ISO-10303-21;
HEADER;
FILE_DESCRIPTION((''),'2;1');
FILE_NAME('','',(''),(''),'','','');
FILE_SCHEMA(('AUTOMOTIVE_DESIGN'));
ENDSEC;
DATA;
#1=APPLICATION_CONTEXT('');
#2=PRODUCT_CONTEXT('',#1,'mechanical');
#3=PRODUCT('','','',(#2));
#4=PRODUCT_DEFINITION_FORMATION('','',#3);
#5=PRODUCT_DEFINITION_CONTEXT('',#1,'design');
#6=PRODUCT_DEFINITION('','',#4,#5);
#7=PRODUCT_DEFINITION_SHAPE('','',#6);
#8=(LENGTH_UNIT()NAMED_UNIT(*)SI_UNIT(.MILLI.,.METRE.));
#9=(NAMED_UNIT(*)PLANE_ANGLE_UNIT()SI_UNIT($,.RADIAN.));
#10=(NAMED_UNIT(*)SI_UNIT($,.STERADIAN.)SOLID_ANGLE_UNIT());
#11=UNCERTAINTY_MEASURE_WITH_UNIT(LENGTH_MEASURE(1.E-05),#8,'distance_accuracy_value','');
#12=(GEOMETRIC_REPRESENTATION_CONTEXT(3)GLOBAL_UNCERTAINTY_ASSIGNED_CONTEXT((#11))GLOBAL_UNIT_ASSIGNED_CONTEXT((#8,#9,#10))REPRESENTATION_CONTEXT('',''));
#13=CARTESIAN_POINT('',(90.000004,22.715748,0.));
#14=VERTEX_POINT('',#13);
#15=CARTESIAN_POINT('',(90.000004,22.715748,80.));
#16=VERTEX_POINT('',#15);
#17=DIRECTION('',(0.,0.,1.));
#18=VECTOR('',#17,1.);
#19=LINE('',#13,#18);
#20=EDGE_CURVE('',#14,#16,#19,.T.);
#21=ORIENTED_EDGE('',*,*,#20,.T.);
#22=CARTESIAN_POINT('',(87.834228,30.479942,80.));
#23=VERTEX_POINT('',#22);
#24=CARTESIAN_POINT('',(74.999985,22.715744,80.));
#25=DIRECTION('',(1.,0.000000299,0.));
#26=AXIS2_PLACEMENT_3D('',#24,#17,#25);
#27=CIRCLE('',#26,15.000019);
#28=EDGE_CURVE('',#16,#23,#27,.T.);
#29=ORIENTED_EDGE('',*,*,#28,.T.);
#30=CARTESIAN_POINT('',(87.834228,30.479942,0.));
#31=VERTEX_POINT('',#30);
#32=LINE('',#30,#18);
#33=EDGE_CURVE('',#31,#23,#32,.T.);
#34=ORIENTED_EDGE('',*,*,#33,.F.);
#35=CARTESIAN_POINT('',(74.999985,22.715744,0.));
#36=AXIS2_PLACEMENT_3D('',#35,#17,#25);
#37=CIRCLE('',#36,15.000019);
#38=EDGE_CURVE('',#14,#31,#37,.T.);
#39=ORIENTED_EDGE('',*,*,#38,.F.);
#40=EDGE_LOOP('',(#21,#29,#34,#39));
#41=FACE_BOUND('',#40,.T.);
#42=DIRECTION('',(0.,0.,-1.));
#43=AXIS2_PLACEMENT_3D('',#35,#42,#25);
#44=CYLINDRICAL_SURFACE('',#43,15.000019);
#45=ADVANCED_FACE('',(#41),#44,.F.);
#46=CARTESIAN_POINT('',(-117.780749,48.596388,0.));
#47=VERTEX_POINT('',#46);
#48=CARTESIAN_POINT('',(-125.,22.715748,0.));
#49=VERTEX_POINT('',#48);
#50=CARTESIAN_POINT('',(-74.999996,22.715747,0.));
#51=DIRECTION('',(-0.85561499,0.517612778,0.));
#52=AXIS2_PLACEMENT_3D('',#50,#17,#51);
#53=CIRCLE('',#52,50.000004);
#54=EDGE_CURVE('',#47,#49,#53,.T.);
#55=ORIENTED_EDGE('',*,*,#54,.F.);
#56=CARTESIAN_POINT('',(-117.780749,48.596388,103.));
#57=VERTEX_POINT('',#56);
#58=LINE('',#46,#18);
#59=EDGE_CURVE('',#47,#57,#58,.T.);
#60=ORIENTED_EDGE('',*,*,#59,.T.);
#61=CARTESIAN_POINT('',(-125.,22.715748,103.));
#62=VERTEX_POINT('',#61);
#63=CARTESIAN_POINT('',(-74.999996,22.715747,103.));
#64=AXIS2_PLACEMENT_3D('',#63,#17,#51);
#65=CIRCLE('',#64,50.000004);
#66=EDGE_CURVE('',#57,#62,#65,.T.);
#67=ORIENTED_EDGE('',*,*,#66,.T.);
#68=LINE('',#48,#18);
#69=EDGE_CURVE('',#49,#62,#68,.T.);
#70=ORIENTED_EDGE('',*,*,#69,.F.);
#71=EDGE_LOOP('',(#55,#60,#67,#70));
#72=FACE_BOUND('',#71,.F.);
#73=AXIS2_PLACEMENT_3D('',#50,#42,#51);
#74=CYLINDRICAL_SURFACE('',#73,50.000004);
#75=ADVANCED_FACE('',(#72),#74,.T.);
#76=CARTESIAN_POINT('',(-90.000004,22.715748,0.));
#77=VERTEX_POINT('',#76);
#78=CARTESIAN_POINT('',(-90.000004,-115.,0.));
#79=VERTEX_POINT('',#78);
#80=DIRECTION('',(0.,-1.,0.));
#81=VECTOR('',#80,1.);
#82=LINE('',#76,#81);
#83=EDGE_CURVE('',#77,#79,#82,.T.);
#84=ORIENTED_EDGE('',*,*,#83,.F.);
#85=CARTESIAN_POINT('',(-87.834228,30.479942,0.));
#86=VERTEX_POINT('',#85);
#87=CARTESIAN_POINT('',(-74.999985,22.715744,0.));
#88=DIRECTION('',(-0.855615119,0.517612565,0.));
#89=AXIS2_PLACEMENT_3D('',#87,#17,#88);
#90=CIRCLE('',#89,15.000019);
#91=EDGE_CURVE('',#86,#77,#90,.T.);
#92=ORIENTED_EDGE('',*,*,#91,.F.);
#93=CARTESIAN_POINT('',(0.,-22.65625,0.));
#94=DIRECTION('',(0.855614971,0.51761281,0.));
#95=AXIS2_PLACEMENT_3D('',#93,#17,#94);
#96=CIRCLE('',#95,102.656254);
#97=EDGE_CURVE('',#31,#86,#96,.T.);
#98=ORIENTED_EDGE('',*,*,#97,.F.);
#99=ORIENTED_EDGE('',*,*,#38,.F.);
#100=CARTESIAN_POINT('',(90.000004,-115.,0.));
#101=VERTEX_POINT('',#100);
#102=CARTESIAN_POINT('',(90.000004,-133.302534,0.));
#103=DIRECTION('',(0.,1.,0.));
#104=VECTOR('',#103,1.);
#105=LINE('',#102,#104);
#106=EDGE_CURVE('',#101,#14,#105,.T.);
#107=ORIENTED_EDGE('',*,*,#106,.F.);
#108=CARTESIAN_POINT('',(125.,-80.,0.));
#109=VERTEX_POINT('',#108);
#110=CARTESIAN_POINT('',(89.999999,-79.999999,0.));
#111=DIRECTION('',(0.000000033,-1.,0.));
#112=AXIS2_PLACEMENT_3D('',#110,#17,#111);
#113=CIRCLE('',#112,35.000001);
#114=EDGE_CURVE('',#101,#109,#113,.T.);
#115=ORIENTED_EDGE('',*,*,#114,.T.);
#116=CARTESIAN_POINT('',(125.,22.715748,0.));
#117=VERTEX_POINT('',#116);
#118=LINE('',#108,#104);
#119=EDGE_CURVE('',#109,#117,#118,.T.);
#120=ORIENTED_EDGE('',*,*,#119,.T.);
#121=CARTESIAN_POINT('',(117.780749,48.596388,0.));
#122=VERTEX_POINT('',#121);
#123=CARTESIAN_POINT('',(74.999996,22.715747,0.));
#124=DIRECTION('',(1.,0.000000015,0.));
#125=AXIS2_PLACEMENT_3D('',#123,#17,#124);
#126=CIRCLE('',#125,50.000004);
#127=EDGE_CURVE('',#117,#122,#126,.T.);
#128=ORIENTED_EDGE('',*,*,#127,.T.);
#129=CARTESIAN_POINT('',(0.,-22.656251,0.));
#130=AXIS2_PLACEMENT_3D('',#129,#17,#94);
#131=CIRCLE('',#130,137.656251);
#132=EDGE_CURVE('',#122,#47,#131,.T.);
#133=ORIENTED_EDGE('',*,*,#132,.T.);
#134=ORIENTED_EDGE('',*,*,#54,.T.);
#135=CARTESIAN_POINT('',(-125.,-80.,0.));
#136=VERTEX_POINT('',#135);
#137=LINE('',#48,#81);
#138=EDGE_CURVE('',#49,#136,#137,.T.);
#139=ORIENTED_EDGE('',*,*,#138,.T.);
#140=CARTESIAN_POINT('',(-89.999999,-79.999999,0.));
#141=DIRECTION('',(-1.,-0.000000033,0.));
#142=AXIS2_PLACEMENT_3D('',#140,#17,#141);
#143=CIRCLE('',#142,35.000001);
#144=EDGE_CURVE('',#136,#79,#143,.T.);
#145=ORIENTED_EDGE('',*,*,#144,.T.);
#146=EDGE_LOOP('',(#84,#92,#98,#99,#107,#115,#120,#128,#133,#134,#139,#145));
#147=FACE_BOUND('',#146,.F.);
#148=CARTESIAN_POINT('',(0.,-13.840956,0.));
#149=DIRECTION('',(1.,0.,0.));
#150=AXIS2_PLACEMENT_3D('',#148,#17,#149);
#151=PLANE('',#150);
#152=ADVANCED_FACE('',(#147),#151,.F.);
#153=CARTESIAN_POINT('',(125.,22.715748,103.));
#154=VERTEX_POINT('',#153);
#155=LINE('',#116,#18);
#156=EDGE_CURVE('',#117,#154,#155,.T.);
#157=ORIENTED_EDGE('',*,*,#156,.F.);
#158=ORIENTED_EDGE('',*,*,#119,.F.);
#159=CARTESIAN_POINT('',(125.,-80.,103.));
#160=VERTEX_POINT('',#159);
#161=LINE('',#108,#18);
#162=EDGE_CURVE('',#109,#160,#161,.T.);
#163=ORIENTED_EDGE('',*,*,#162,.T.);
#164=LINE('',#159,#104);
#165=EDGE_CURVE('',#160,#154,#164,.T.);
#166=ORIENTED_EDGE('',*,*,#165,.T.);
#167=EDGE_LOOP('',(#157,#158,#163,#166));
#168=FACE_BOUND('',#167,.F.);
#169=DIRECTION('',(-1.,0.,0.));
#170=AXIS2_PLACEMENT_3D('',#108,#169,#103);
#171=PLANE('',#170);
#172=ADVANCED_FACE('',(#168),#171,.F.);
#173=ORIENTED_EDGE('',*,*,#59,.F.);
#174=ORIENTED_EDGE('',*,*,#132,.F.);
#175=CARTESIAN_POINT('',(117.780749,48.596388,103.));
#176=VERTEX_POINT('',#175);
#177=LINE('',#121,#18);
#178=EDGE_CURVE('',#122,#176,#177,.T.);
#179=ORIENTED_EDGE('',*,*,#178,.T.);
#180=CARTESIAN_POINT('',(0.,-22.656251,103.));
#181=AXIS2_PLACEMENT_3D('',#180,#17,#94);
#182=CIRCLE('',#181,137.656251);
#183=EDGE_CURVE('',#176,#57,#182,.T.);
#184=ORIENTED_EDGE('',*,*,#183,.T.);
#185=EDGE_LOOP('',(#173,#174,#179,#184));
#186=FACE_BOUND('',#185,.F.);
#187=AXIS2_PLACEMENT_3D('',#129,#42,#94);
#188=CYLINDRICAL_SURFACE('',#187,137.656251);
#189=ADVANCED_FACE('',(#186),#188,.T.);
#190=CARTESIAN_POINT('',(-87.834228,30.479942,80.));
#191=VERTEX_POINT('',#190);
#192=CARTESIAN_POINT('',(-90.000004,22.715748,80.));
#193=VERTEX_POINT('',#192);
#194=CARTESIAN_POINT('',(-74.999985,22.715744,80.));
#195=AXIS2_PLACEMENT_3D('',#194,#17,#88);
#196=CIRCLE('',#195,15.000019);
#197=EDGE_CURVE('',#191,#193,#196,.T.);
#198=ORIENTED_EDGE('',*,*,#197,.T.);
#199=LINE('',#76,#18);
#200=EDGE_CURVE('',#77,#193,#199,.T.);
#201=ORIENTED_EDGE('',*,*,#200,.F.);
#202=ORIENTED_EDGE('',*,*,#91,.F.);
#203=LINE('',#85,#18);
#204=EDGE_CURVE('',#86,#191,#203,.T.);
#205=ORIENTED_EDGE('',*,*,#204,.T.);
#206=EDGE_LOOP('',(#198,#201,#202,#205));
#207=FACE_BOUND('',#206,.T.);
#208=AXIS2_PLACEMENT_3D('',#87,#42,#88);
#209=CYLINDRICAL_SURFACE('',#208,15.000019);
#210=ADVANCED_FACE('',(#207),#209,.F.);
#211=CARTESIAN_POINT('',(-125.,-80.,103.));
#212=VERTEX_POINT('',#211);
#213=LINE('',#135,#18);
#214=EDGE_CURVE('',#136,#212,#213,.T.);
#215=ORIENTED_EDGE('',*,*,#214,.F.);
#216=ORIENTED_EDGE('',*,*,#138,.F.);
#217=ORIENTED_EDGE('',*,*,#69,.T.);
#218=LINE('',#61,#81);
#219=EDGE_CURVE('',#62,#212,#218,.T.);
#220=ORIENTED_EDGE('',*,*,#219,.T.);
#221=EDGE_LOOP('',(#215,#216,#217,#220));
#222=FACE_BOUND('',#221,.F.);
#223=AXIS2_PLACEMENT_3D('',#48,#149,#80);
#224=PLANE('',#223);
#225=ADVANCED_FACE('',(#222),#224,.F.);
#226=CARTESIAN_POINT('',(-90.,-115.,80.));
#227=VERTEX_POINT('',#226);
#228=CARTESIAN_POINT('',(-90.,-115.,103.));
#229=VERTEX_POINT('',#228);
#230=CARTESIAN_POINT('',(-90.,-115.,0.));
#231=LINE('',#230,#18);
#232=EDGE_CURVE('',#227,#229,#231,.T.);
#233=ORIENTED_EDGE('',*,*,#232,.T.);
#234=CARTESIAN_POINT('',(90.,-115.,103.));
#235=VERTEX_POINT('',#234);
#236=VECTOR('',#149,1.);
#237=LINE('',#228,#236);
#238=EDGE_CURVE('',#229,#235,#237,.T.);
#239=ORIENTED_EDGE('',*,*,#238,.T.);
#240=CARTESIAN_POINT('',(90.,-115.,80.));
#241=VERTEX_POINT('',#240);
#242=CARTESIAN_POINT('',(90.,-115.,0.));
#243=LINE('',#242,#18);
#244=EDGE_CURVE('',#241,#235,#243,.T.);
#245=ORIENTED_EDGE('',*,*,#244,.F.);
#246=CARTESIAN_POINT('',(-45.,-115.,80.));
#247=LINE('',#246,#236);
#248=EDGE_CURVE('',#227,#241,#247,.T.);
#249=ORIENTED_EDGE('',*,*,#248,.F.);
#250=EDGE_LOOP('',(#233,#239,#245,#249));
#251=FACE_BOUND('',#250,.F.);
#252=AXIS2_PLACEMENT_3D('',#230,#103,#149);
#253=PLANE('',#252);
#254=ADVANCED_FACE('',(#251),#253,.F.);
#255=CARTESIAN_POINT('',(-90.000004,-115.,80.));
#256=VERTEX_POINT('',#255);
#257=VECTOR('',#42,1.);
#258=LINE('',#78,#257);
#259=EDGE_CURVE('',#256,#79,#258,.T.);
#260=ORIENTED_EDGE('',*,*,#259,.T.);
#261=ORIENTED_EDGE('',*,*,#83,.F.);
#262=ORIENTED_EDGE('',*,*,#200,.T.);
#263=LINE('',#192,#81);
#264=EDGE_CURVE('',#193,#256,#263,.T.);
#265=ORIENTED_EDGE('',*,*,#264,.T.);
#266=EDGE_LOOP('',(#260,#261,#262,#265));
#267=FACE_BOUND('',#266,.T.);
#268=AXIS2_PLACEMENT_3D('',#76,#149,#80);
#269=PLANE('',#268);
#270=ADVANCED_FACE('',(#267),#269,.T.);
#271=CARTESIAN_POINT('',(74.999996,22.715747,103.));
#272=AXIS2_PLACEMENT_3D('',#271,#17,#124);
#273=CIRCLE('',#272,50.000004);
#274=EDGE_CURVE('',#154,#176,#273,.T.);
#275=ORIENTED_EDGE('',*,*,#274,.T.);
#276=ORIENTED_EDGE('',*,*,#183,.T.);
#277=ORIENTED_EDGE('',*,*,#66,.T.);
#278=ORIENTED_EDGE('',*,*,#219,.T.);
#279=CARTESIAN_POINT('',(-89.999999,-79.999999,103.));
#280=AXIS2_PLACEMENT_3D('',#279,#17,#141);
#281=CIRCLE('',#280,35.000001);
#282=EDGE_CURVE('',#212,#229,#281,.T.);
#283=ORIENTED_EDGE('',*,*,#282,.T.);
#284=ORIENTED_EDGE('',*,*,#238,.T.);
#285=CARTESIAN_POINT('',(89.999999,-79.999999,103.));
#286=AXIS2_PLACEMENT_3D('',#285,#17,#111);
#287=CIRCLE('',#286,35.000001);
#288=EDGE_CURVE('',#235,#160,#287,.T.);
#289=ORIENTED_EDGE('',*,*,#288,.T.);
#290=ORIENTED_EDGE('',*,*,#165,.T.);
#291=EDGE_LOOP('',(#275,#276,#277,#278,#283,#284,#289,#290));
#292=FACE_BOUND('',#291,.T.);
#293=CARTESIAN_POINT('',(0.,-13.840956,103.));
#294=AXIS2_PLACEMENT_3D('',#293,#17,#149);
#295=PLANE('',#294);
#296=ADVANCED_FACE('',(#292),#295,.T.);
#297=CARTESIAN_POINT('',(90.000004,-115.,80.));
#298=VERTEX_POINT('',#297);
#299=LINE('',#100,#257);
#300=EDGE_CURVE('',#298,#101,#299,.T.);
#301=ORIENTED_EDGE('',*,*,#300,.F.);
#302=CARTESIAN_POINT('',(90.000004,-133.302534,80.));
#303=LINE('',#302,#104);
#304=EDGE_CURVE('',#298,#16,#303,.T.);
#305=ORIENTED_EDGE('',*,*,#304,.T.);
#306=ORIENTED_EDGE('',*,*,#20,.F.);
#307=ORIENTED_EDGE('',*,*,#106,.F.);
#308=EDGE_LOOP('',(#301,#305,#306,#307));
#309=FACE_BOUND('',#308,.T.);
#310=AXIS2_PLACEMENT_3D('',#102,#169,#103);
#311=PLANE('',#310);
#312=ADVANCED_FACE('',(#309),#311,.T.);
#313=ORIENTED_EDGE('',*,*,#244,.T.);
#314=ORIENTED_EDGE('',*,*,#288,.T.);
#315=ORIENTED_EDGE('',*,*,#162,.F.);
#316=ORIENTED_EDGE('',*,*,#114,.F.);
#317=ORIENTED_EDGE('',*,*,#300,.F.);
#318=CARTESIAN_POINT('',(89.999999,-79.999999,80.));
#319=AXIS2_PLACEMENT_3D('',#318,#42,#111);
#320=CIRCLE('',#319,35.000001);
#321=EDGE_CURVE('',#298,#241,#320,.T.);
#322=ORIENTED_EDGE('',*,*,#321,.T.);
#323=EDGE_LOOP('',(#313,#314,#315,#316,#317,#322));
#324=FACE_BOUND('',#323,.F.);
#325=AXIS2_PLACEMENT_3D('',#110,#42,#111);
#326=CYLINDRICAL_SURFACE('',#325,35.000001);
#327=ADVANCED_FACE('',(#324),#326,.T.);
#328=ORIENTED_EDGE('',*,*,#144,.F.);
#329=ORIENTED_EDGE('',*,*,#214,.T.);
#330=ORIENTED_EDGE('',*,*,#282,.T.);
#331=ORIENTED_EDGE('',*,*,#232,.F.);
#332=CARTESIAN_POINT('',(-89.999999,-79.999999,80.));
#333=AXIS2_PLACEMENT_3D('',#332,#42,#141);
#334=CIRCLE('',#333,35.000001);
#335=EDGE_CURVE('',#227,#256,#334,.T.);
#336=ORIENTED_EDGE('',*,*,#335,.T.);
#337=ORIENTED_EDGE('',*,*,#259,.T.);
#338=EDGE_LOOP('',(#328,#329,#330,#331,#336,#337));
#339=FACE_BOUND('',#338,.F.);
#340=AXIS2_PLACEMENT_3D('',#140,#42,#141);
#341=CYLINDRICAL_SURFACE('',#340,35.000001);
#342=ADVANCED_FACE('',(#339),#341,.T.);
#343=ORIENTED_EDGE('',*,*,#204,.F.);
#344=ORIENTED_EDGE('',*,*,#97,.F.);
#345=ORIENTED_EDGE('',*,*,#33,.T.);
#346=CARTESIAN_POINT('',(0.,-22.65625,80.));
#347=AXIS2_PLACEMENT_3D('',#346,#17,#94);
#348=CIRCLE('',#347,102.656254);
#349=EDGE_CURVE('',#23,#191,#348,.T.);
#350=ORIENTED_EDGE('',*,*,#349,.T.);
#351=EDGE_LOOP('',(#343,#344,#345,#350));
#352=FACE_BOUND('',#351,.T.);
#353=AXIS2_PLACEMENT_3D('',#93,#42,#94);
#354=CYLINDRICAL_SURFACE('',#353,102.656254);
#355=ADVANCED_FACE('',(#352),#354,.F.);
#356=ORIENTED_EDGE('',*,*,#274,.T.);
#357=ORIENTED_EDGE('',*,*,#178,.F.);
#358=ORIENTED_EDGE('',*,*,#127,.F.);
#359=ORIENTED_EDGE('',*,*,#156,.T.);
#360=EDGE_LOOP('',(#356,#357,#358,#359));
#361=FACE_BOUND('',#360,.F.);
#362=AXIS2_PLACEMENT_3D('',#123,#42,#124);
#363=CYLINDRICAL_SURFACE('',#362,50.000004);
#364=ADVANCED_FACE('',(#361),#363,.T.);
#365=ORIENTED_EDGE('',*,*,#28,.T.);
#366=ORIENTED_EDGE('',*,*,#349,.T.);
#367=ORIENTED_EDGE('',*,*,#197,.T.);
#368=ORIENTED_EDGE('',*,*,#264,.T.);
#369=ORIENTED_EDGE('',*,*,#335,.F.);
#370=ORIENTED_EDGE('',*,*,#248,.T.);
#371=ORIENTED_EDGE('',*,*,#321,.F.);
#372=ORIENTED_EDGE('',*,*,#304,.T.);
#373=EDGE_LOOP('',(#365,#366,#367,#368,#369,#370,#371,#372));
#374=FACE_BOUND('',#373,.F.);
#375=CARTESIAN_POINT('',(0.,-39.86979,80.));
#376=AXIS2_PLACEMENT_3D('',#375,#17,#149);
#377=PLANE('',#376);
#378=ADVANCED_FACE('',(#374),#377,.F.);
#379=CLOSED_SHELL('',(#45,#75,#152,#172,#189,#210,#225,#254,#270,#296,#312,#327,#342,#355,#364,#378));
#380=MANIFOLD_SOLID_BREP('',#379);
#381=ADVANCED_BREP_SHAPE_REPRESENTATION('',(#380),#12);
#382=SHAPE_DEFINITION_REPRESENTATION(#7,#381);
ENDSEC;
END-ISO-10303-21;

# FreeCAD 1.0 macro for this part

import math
import FreeCAD as App
import Part
import Sketcher

V = App.Vector

doc = App.newDocument("Part")
params = doc.addObject("Spreadsheet::Sheet", "Params")
for row, (alias, value) in enumerate([
    ("sketch1_radius", "35.000001 mm"),
    ("sketch1_width", "180 mm"),
    ("pad1_length", "103 mm"),
    ("pocket1_length", "80 mm"),
], start=1):
    params.set(f"A{row}", alias)
    params.set(f"B{row}", "=" + value)
    params.setAlias(f"B{row}", alias)

body = doc.addObject("PartDesign::Body", "Body")

sketch1 = body.newObject("Sketcher::SketchObject", "Sketch")
sketch1.AttachmentSupport = (doc.getObject("XY_Plane"), [""])
sketch1.MapMode = "FlatFace"
sketch1.addGeometry([
    Part.LineSegment(V(-90, -115, 0), V(90, -115, 0)),
    Part.ArcOfCircle(Part.Circle(V(90, -80, 0), V(0, 0, 1), 35), math.radians(-90), math.radians(0)),
    Part.LineSegment(V(125, -80, 0), V(125, 23, 0)),
    Part.ArcOfCircle(Part.Circle(V(75, 23, 0), V(0, 0, 1), 50), math.radians(0), math.radians(31)),
    Part.ArcOfCircle(Part.Circle(V(0, -23, 0), V(0, 0, 1), 138), math.radians(31), math.radians(149)),
    Part.ArcOfCircle(Part.Circle(V(-75, 23, 0), V(0, 0, 1), 50), math.radians(149), math.radians(180)),
    Part.LineSegment(V(-125, 23, 0), V(-125, -80, 0)),
    Part.ArcOfCircle(Part.Circle(V(-90, -80, 0), V(0, 0, 1), 35), math.radians(-180), math.radians(-90)),
], False)
sketch1.addConstraint([
    Sketcher.Constraint("Tangent", 0, 2, 1, 1),
    Sketcher.Constraint("Tangent", 1, 2, 2, 1),
    Sketcher.Constraint("Tangent", 2, 2, 3, 1),
    Sketcher.Constraint("Tangent", 3, 2, 4, 1),
    Sketcher.Constraint("Tangent", 4, 2, 5, 1),
    Sketcher.Constraint("Tangent", 5, 2, 6, 1),
    Sketcher.Constraint("Tangent", 6, 2, 7, 1),
    Sketcher.Constraint("Tangent", 7, 2, 0, 1),
    Sketcher.Constraint("Horizontal", 0),
    Sketcher.Constraint("Vertical", 2),
    Sketcher.Constraint("Vertical", 6),
    Sketcher.Constraint("Equal", 3, 5),
    Sketcher.Constraint("Equal", 1, 7),
    Sketcher.Constraint("Symmetric", 3, 3, 5, 3, -2),
    Sketcher.Constraint("Radius", 1, 35.000001),
    Sketcher.Constraint("DistanceX", 0, 1, 0, 2, 180.0),
    Sketcher.Constraint("DistanceY", 1, 3, -1, 1, 79.999999),
    Sketcher.Constraint("Radius", 4, 137.656251),
    Sketcher.Constraint("Radius", 3, 50.000004),
    Sketcher.Constraint("DistanceY", 2, 1, 2, 2, 102.715748),
])
sketch1.setExpression("Constraints[14]", "Params.sketch1_radius")
sketch1.setExpression("Constraints[15]", "Params.sketch1_width")
pad1 = body.newObject("PartDesign::Pad", "Pad")
pad1.Profile = sketch1
pad1.setExpression("Length", "Params.pad1_length")

sketch2 = body.newObject("Sketcher::SketchObject", "Sketch001")
sketch2.AttachmentSupport = (doc.getObject("XY_Plane"), [""])
sketch2.MapMode = "FlatFace"
sketch2.addGeometry([
    Part.LineSegment(V(-90, -133, 0), V(90, -133, 0)),
    Part.LineSegment(V(90, -133, 0), V(90, 23, 0)),
    Part.ArcOfCircle(Part.Circle(V(75, 23, 0), V(0, 0, 1), 15), math.radians(0), math.radians(31)),
    Part.ArcOfCircle(Part.Circle(V(0, -23, 0), V(0, 0, 1), 103), math.radians(31), math.radians(149)),
    Part.ArcOfCircle(Part.Circle(V(-75, 23, 0), V(0, 0, 1), 15), math.radians(149), math.radians(180)),
    Part.LineSegment(V(-90, 23, 0), V(-90, -133, 0)),
], False)
sketch2.addConstraint([
    Sketcher.Constraint("Coincident", 0, 2, 1, 1),
    Sketcher.Constraint("Tangent", 1, 2, 2, 1),
    Sketcher.Constraint("Tangent", 2, 2, 3, 1),
    Sketcher.Constraint("Tangent", 3, 2, 4, 1),
    Sketcher.Constraint("Tangent", 4, 2, 5, 1),
    Sketcher.Constraint("Coincident", 5, 2, 0, 1),
    Sketcher.Constraint("Horizontal", 0),
    Sketcher.Constraint("Vertical", 1),
    Sketcher.Constraint("Vertical", 5),
    Sketcher.Constraint("Equal", 2, 4),
    Sketcher.Constraint("Symmetric", 2, 3, 4, 3, -2),
    Sketcher.Constraint("Radius", 2, 15.000019),
    Sketcher.Constraint("Radius", 3, 102.656254),
    Sketcher.Constraint("DistanceY", 3, 3, 1, 2, 45.371998),
    Sketcher.Constraint("DistanceY", 1, 1, 1, 2, 156.018282),
    Sketcher.Constraint("DistanceY", 3, 3, -1, 1, 22.65625),
])
pocket1 = body.newObject("PartDesign::Pocket", "Pocket")
pocket1.Profile = sketch2
pocket1.setExpression("Length", "Params.pocket1_length")
pocket1.Reversed = True

doc.recompute()
